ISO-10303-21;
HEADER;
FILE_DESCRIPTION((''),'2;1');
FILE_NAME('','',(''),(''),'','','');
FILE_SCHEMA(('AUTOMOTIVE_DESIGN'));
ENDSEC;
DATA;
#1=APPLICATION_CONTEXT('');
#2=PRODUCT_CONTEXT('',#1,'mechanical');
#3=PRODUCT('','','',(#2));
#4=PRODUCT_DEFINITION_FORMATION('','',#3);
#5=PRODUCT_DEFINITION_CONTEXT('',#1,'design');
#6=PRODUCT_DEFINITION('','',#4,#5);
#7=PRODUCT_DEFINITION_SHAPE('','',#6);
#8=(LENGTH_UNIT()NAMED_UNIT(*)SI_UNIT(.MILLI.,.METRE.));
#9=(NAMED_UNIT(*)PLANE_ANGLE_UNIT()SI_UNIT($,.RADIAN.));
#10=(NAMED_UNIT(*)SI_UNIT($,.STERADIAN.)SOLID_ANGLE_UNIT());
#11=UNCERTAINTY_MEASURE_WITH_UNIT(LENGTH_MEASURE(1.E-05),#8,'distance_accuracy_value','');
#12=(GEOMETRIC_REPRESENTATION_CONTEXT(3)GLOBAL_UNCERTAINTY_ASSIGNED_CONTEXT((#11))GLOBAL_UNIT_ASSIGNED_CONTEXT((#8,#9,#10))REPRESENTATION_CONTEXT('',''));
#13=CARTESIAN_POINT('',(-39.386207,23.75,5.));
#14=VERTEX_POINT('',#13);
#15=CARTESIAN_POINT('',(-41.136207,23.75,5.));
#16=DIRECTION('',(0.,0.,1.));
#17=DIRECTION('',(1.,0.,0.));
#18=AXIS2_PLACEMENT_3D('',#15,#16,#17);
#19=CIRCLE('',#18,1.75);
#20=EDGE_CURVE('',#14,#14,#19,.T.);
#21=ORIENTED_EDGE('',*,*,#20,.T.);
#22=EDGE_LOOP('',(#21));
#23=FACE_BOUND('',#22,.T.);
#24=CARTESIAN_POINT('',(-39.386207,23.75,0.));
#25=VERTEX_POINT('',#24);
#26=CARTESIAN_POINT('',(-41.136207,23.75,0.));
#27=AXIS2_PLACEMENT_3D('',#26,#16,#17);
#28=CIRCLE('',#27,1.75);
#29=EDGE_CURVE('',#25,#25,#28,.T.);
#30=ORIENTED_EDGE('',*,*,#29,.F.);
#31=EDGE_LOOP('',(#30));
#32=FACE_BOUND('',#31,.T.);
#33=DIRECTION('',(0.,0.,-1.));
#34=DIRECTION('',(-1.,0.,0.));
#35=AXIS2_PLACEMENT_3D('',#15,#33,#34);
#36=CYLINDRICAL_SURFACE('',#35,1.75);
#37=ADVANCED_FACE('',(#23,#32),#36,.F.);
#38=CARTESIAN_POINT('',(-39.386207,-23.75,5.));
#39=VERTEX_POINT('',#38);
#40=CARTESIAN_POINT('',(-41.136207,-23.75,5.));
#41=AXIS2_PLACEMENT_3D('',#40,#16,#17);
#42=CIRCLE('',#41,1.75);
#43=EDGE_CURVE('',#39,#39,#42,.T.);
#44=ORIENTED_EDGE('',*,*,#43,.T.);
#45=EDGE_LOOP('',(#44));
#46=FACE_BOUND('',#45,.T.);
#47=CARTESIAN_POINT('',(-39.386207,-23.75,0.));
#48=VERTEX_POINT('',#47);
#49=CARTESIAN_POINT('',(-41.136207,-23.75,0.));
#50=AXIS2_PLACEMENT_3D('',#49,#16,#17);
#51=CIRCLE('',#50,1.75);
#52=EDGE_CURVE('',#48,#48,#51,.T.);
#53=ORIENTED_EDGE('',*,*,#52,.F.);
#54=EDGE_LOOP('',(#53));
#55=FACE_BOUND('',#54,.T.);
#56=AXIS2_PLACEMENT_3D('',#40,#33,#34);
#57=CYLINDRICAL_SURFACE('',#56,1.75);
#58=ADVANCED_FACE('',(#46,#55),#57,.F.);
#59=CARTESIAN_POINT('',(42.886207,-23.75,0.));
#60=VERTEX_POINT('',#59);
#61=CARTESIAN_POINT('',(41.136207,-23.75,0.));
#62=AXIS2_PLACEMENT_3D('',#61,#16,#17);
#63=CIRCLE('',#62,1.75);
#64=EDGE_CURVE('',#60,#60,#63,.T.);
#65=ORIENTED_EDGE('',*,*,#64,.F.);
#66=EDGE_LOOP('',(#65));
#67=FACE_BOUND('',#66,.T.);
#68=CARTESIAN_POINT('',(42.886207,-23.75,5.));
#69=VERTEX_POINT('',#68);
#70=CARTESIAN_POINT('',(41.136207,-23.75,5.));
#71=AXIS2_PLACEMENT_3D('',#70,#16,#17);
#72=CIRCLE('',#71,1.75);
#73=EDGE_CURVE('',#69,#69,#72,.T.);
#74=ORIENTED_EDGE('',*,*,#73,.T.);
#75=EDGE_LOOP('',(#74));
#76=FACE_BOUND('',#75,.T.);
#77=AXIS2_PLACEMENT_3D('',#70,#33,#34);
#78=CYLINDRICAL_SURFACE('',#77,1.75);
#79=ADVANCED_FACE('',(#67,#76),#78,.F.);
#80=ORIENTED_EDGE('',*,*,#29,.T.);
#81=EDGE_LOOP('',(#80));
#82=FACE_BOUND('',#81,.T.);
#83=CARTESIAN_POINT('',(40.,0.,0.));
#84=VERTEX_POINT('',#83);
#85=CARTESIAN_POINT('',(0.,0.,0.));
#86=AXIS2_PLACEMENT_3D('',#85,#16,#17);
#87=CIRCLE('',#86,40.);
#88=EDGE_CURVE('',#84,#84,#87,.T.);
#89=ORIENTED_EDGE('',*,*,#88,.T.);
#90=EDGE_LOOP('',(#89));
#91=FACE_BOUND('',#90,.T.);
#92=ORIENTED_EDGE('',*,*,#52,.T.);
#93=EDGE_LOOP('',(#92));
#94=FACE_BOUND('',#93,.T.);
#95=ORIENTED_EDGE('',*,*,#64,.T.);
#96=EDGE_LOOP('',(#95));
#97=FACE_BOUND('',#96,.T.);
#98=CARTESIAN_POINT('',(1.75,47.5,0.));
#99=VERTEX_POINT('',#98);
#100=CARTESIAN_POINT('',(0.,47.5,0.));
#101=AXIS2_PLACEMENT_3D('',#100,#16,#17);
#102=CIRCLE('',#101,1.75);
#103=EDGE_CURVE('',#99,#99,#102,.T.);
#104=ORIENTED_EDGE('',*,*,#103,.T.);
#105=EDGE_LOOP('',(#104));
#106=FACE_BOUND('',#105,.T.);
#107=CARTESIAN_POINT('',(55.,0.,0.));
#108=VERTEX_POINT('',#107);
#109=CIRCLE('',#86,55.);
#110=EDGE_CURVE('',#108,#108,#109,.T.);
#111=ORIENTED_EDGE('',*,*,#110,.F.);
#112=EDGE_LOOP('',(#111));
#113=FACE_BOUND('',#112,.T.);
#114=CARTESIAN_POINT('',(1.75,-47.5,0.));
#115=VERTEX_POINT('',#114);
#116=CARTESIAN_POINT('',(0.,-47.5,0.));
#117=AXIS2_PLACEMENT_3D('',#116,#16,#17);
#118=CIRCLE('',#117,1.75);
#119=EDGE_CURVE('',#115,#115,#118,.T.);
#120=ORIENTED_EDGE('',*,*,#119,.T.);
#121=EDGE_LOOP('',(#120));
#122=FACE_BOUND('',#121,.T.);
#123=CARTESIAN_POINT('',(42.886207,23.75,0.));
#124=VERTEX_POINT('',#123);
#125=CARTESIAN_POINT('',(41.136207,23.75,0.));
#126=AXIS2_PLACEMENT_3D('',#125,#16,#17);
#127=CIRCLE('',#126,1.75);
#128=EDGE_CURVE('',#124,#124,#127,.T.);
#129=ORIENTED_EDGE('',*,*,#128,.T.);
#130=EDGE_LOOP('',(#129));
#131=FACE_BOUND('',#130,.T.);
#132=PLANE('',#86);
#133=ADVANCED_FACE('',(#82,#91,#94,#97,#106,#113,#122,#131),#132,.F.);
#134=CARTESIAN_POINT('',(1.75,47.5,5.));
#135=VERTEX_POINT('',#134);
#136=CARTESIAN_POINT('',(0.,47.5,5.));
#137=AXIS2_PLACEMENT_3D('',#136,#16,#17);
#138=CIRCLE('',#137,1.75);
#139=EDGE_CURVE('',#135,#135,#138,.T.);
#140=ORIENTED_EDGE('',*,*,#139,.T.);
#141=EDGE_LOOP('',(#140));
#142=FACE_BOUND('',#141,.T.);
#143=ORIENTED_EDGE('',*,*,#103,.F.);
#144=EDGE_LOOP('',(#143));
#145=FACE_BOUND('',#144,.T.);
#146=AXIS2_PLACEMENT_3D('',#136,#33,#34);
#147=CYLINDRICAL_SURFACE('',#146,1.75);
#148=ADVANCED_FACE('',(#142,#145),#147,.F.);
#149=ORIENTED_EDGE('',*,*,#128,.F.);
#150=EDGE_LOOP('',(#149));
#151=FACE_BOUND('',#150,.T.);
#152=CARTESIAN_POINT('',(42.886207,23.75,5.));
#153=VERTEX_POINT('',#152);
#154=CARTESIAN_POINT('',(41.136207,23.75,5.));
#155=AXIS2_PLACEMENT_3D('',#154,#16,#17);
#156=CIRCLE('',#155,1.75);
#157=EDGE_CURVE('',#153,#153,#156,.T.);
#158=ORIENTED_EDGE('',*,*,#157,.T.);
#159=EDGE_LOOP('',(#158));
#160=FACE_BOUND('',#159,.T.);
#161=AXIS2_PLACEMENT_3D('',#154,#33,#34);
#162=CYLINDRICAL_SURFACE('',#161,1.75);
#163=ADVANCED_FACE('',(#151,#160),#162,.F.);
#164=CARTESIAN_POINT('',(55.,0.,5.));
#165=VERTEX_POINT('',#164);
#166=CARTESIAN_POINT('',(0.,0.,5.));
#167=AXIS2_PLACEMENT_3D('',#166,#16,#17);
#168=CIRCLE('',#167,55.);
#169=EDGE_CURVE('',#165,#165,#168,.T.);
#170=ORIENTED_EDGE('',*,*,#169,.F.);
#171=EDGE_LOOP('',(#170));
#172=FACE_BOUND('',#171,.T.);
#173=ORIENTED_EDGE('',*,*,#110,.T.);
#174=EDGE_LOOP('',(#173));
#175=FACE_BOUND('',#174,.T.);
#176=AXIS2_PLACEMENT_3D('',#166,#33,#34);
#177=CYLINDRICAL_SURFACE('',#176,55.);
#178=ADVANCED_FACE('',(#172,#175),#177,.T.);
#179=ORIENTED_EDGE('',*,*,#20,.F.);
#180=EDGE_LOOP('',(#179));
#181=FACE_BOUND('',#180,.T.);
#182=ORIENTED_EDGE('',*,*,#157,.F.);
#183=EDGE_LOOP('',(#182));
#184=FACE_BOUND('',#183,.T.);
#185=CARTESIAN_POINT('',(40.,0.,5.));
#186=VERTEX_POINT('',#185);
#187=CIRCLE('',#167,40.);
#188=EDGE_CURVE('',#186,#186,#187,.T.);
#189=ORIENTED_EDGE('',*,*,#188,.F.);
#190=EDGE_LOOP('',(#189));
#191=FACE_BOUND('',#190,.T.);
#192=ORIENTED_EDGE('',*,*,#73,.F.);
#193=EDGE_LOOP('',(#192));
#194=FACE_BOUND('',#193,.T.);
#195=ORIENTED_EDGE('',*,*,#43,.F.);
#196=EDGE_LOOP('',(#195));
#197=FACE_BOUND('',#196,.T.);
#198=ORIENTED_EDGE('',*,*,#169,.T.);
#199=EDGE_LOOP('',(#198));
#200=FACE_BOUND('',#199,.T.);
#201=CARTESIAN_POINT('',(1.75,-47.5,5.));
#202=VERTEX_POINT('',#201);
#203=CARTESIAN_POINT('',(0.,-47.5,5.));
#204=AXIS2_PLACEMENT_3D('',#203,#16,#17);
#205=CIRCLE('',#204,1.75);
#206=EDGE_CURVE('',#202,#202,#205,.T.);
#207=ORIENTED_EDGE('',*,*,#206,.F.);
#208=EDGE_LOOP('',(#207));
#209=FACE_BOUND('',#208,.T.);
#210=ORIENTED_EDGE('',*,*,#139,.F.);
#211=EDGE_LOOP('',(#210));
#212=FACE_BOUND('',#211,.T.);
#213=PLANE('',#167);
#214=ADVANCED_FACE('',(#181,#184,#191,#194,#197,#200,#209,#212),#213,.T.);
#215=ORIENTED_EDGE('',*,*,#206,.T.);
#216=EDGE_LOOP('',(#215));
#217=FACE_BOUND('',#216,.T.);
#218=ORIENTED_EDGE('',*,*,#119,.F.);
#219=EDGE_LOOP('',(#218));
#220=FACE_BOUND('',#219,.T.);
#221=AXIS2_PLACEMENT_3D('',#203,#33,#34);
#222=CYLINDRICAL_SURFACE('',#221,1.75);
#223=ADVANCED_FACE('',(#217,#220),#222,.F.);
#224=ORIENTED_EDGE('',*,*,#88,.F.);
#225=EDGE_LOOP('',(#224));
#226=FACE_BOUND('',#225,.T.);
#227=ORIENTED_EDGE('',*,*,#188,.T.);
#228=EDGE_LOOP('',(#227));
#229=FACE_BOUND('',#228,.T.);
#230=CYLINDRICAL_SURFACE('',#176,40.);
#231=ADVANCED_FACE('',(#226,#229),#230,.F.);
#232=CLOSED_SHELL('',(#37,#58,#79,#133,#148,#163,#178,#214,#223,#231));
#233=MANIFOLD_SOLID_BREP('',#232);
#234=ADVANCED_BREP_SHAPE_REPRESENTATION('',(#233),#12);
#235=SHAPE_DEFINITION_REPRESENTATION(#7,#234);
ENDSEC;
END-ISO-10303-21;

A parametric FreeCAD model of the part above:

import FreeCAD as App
import Part
import Sketcher
from FreeCAD import Vector
Q = App.Units.Quantity

doc = App.newDocument("Part")
body = doc.addObject("PartDesign::Body", "Body")

# Sketch on XY plane
sketch1 = doc.addObject("Sketcher::SketchObject", "Sketch")
body.addObject(sketch1)
sketch1.AttachmentSupport = (doc.XY_Plane, [""])
sketch1.MapMode = "FlatFace"
sketch1.addGeometry(Part.Circle(Vector(0, 0, 0), Vector(0, 0, 1), 55), False)
sketch1.addGeometry(Part.Circle(Vector(-41.136207, -23.75, 0), Vector(0, 0, 1), 1.75), False)
sketch1.addGeometry(Part.Circle(Vector(0, -47.5, 0), Vector(0, 0, 1), 1.75), False)
sketch1.addGeometry(Part.Circle(Vector(0, 0, 0), Vector(0, 0, 1), 40), False)
sketch1.addGeometry(Part.Circle(Vector(41.136207, -23.75, 0), Vector(0, 0, 1), 1.75), False)
sketch1.addGeometry(Part.Circle(Vector(-41.136207, 23.75, 0), Vector(0, 0, 1), 1.75), False)
sketch1.addGeometry(Part.Circle(Vector(41.136207, 23.75, 0), Vector(0, 0, 1), 1.75), False)
sketch1.addGeometry(Part.Circle(Vector(0, 47.5, 0), Vector(0, 0, 1), 1.75), False)
sketch1.addConstraint(Sketcher.Constraint("Coincident", 0, 3, -1, 1))
sketch1.addConstraint(Sketcher.Constraint("Coincident", 3, 3, -1, 1))
sketch1.addConstraint(Sketcher.Constraint("Equal", 1, 2))
sketch1.addConstraint(Sketcher.Constraint("Equal", 2, 4))
sketch1.addConstraint(Sketcher.Constraint("Equal", 4, 5))
sketch1.addConstraint(Sketcher.Constraint("Equal", 5, 6))
sketch1.addConstraint(Sketcher.Constraint("Equal", 6, 7))
sketch1.addConstraint(Sketcher.Constraint("Symmetric", 4, 3, 5, 3, -1, 1))
sketch1.addConstraint(Sketcher.Constraint("Symmetric", 1, 3, 6, 3, -1, 1))
sketch1.addConstraint(Sketcher.Constraint("Symmetric", 2, 3, 7, 3, -1, 1))
sketch1.addConstraint(Sketcher.Constraint("Symmetric", 1, 3, 4, 3, -2))
sketch1.addConstraint(Sketcher.Constraint("PointOnObject", 2, 3, -2))
sketch1.addConstraint(Sketcher.Constraint("Diameter", 0, Q("110 mm")))
sketch1.addConstraint(Sketcher.Constraint("Diameter", 3, Q("80 mm")))
sketch1.addConstraint(Sketcher.Constraint("Diameter", 1, Q("3.5 mm")))
sketch1.addConstraint(Sketcher.Constraint("DistanceY", 2, 3, -1, 1, Q("47.5 mm")))
sketch1.addConstraint(Sketcher.Constraint("DistanceY", 1, 3, 5, 3, Q("47.5 mm")))
sketch1.addConstraint(Sketcher.Constraint("DistanceX", 1, 3, -1, 1, Q("41.136207 mm")))
pad1 = doc.addObject("PartDesign::Pad", "Pad")
body.addObject(pad1)
pad1.Profile = sketch1
pad1.Length = 5

doc.recompute()
